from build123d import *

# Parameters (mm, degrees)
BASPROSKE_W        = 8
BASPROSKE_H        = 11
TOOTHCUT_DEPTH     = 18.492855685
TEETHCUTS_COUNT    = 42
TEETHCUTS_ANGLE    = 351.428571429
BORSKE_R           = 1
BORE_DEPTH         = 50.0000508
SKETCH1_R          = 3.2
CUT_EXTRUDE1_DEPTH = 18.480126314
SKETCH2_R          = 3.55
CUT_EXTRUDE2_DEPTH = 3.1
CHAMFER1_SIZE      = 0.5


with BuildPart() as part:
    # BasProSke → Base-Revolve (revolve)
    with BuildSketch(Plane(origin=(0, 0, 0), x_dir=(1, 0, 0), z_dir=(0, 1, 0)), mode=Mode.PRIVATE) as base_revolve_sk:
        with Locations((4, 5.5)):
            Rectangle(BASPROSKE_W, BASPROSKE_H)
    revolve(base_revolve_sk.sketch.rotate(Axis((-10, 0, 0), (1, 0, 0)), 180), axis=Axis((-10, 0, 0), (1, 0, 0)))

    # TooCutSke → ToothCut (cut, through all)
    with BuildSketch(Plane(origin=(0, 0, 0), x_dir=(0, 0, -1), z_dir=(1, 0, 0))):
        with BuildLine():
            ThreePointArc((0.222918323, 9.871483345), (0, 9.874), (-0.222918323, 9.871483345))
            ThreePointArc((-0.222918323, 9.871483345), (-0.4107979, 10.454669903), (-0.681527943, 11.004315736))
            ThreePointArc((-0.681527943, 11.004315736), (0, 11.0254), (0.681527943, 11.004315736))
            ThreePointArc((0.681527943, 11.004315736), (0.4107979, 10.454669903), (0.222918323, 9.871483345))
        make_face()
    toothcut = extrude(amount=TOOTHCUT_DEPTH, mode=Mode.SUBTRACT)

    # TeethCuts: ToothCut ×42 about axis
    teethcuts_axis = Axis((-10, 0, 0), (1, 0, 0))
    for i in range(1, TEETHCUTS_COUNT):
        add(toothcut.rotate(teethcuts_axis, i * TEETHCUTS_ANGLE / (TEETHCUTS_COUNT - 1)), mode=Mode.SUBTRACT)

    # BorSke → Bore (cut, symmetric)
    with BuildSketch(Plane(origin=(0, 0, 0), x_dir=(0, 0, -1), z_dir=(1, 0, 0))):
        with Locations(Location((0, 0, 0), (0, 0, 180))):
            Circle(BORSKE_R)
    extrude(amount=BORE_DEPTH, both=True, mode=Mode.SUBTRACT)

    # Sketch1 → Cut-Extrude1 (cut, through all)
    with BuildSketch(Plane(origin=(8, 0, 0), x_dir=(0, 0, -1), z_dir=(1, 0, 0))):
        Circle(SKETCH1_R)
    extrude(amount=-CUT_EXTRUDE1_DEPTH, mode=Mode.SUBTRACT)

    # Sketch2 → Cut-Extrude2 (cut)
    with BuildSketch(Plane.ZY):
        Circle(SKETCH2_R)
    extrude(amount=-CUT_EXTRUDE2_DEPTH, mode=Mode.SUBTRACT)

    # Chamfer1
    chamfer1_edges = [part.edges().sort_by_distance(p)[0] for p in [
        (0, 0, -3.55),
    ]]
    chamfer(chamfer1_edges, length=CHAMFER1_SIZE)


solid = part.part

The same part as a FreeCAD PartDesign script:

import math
import FreeCAD as App
import Part
import Sketcher

V = App.Vector
Q = App.Units.Quantity


def edges_at(feature, points):
    """Names of the edges that pass closest to the given points."""
    edges = feature.Shape.Edges
    near = lambda p: min(range(len(edges)), key=lambda i: edges[i].distToShape(Part.Vertex(*p))[0])
    return sorted({f"Edge{near(p) + 1}" for p in points})


def add_polygon(sketch, points):
    """Adds a closed chain of lines whose ends are joined by coincident constraints."""
    first, n = sketch.GeometryCount, len(points)
    for a, b in zip(points, points[1:] + points[:1]):
        sketch.addGeometry(Part.LineSegment(App.Vector(*a, 0), App.Vector(*b, 0)), False)
    for i in range(n):
        sketch.addConstraint(Sketcher.Constraint("Coincident", first + i, 2, first + (i + 1) % n, 1))

doc = App.newDocument("Part")
body = doc.addObject("PartDesign::Body", "Body")

# Sketch on XZ plane
sketch1 = doc.addObject("Sketcher::SketchObject", "Sketch")
body.addObject(sketch1)
sketch1.AttachmentSupport = (doc.XZ_Plane, [""])
sketch1.MapMode = "FlatFace"
add_polygon(sketch1, [(0, -11), (0, 0), (8, 0), (8, -11)])  # lines 0-3
sketch1.addConstraint([
    Sketcher.Constraint("Vertical", 0),
    Sketcher.Constraint("Horizontal", 1),
    Sketcher.Constraint("Vertical", 2),
    Sketcher.Constraint("Horizontal", 3),
    Sketcher.Constraint("Coincident", 0, 2, -1, 1),
    Sketcher.Constraint("DistanceX", 1, 1, 1, 2, Q("8 mm")),
    Sketcher.Constraint("DistanceY", 0, 1, 0, 2, Q("11 mm")),
])
revolution = doc.addObject("PartDesign::Revolution", "Revolution")
body.addObject(revolution)
revolution.Profile = sketch1
revolution.ReferenceAxis = (sketch1, ["H_Axis"])
revolution.Angle = 360

# Sketch on YZ plane
sketch2 = doc.addObject("Sketcher::SketchObject", "Sketch001")
body.addObject(sketch2)
sketch2.AttachmentSupport = (doc.YZ_Plane, [""])
sketch2.MapMode = "FlatFace"
sketch2.addGeometry([
    Part.ArcOfCircle(Part.Circle(V(-0.000002, 0, 0), V(0, 0, 1), 9.874002), math.radians(-1.293636), math.radians(1.293636)),
    Part.ArcOfCircle(Part.Circle(V(8.878618, -4.303876, 0), V(0, 0, 1), 4.2), math.radians(59.594363), math.radians(76.326037)),
    Part.ArcOfCircle(Part.Circle(V(0, 0, 0), V(0, 0, 1), 11.0254), math.radians(-3.543961), math.radians(3.543961)),
    Part.ArcOfCircle(Part.Circle(V(8.878618, 4.303876, 0), V(0, 0, 1), 4.2), math.radians(-76.326037), math.radians(-59.594363)),
], False)
sketch2.addConstraint([
    Sketcher.Constraint("Coincident", 0, 1, 1, 2),
    Sketcher.Constraint("Coincident", 1, 1, 2, 1),
    Sketcher.Constraint("Coincident", 2, 2, 3, 2),
    Sketcher.Constraint("Coincident", 3, 1, 0, 2),
    Sketcher.Constraint("Coincident", 0, 3, -1, 1),
    Sketcher.Constraint("Coincident", 2, 3, -1, 1),
    Sketcher.Constraint("Equal", 1, 3),
    Sketcher.Constraint("Symmetric", 1, 3, 3, 3, -1),
    Sketcher.Constraint("Radius", 1, Q("4.2 mm")),
    Sketcher.Constraint("Radius", 0, Q("9.874002 mm")),
    Sketcher.Constraint("Radius", 2, Q("11.0254 mm")),
    Sketcher.Constraint("DistanceX", 1, 3, 1, 1, Q("2.125698 mm")),
    Sketcher.Constraint("DistanceY", 0, 1, -1, 1, Q("0.222918 mm")),
])
pocket1 = doc.addObject("PartDesign::Pocket", "Pocket")
body.addObject(pocket1)
pocket1.Profile = sketch2
pocket1.Type = "ThroughAll"
pocket1.Reversed = True
doc.recompute()

polarpattern = doc.addObject("PartDesign::PolarPattern", "PolarPattern")
body.addObject(polarpattern)
polarpattern.Originals = [pocket1]
polarpattern.Axis = (doc.X_Axis, [""])
polarpattern.Angle = 360
polarpattern.Occurrences = 42
body.Tip = polarpattern

# Sketch on YZ plane
sketch3 = doc.addObject("Sketcher::SketchObject", "Sketch002")
body.addObject(sketch3)
sketch3.AttachmentSupport = (doc.YZ_Plane, [""])
sketch3.MapMode = "FlatFace"
sketch3.addGeometry(Part.Circle(V(0, 0, 0), V(0, 0, 1), 1), False)
sketch3.addConstraint([
    Sketcher.Constraint("Coincident", 0, 3, -1, 1),
    Sketcher.Constraint("Diameter", 0, Q("2 mm")),
])
pocket2 = doc.addObject("PartDesign::Pocket", "Pocket001")
body.addObject(pocket2)
pocket2.Profile = sketch3
pocket2.Length = 100.000102
pocket2.Midplane = True

# Sketch on YZ plane
sketch4 = doc.addObject("Sketcher::SketchObject", "Sketch003")
body.addObject(sketch4)
sketch4.AttachmentSupport = (doc.YZ_Plane, [""])
sketch4.MapMode = "FlatFace"
sketch4.AttachmentOffset = App.Placement(V(0, 0, 8), App.Rotation())
sketch4.addGeometry(Part.Circle(V(0, 0, 0), V(0, 0, 1), 3.2), False)
sketch4.addConstraint([
    Sketcher.Constraint("Coincident", 0, 3, -1, 1),
    Sketcher.Constraint("Diameter", 0, Q("6.4 mm")),
])
pocket3 = doc.addObject("PartDesign::Pocket", "Pocket002")
body.addObject(pocket3)
pocket3.Profile = sketch4
pocket3.Type = "ThroughAll"

# Sketch on YZ plane
sketch5 = doc.addObject("Sketcher::SketchObject", "Sketch004")
body.addObject(sketch5)
sketch5.AttachmentSupport = (doc.YZ_Plane, [""])
sketch5.MapMode = "FlatFace"
sketch5.addGeometry(Part.Circle(V(0, 0, 0), V(0, 0, 1), 3.55), False)
sketch5.addConstraint([
    Sketcher.Constraint("Coincident", 0, 3, -1, 1),
    Sketcher.Constraint("Diameter", 0, Q("7.1 mm")),
])
pocket4 = doc.addObject("PartDesign::Pocket", "Pocket003")
body.addObject(pocket4)
pocket4.Profile = sketch5
pocket4.Length = 3.1
pocket4.Reversed = True
doc.recompute()

chamfer = doc.addObject("PartDesign::Chamfer", "Chamfer")
body.addObject(chamfer)
chamfer.Base = (pocket4, edges_at(pocket4, [(0, 0, -3.55)]))
chamfer.Size = 0.5

doc.recompute()
